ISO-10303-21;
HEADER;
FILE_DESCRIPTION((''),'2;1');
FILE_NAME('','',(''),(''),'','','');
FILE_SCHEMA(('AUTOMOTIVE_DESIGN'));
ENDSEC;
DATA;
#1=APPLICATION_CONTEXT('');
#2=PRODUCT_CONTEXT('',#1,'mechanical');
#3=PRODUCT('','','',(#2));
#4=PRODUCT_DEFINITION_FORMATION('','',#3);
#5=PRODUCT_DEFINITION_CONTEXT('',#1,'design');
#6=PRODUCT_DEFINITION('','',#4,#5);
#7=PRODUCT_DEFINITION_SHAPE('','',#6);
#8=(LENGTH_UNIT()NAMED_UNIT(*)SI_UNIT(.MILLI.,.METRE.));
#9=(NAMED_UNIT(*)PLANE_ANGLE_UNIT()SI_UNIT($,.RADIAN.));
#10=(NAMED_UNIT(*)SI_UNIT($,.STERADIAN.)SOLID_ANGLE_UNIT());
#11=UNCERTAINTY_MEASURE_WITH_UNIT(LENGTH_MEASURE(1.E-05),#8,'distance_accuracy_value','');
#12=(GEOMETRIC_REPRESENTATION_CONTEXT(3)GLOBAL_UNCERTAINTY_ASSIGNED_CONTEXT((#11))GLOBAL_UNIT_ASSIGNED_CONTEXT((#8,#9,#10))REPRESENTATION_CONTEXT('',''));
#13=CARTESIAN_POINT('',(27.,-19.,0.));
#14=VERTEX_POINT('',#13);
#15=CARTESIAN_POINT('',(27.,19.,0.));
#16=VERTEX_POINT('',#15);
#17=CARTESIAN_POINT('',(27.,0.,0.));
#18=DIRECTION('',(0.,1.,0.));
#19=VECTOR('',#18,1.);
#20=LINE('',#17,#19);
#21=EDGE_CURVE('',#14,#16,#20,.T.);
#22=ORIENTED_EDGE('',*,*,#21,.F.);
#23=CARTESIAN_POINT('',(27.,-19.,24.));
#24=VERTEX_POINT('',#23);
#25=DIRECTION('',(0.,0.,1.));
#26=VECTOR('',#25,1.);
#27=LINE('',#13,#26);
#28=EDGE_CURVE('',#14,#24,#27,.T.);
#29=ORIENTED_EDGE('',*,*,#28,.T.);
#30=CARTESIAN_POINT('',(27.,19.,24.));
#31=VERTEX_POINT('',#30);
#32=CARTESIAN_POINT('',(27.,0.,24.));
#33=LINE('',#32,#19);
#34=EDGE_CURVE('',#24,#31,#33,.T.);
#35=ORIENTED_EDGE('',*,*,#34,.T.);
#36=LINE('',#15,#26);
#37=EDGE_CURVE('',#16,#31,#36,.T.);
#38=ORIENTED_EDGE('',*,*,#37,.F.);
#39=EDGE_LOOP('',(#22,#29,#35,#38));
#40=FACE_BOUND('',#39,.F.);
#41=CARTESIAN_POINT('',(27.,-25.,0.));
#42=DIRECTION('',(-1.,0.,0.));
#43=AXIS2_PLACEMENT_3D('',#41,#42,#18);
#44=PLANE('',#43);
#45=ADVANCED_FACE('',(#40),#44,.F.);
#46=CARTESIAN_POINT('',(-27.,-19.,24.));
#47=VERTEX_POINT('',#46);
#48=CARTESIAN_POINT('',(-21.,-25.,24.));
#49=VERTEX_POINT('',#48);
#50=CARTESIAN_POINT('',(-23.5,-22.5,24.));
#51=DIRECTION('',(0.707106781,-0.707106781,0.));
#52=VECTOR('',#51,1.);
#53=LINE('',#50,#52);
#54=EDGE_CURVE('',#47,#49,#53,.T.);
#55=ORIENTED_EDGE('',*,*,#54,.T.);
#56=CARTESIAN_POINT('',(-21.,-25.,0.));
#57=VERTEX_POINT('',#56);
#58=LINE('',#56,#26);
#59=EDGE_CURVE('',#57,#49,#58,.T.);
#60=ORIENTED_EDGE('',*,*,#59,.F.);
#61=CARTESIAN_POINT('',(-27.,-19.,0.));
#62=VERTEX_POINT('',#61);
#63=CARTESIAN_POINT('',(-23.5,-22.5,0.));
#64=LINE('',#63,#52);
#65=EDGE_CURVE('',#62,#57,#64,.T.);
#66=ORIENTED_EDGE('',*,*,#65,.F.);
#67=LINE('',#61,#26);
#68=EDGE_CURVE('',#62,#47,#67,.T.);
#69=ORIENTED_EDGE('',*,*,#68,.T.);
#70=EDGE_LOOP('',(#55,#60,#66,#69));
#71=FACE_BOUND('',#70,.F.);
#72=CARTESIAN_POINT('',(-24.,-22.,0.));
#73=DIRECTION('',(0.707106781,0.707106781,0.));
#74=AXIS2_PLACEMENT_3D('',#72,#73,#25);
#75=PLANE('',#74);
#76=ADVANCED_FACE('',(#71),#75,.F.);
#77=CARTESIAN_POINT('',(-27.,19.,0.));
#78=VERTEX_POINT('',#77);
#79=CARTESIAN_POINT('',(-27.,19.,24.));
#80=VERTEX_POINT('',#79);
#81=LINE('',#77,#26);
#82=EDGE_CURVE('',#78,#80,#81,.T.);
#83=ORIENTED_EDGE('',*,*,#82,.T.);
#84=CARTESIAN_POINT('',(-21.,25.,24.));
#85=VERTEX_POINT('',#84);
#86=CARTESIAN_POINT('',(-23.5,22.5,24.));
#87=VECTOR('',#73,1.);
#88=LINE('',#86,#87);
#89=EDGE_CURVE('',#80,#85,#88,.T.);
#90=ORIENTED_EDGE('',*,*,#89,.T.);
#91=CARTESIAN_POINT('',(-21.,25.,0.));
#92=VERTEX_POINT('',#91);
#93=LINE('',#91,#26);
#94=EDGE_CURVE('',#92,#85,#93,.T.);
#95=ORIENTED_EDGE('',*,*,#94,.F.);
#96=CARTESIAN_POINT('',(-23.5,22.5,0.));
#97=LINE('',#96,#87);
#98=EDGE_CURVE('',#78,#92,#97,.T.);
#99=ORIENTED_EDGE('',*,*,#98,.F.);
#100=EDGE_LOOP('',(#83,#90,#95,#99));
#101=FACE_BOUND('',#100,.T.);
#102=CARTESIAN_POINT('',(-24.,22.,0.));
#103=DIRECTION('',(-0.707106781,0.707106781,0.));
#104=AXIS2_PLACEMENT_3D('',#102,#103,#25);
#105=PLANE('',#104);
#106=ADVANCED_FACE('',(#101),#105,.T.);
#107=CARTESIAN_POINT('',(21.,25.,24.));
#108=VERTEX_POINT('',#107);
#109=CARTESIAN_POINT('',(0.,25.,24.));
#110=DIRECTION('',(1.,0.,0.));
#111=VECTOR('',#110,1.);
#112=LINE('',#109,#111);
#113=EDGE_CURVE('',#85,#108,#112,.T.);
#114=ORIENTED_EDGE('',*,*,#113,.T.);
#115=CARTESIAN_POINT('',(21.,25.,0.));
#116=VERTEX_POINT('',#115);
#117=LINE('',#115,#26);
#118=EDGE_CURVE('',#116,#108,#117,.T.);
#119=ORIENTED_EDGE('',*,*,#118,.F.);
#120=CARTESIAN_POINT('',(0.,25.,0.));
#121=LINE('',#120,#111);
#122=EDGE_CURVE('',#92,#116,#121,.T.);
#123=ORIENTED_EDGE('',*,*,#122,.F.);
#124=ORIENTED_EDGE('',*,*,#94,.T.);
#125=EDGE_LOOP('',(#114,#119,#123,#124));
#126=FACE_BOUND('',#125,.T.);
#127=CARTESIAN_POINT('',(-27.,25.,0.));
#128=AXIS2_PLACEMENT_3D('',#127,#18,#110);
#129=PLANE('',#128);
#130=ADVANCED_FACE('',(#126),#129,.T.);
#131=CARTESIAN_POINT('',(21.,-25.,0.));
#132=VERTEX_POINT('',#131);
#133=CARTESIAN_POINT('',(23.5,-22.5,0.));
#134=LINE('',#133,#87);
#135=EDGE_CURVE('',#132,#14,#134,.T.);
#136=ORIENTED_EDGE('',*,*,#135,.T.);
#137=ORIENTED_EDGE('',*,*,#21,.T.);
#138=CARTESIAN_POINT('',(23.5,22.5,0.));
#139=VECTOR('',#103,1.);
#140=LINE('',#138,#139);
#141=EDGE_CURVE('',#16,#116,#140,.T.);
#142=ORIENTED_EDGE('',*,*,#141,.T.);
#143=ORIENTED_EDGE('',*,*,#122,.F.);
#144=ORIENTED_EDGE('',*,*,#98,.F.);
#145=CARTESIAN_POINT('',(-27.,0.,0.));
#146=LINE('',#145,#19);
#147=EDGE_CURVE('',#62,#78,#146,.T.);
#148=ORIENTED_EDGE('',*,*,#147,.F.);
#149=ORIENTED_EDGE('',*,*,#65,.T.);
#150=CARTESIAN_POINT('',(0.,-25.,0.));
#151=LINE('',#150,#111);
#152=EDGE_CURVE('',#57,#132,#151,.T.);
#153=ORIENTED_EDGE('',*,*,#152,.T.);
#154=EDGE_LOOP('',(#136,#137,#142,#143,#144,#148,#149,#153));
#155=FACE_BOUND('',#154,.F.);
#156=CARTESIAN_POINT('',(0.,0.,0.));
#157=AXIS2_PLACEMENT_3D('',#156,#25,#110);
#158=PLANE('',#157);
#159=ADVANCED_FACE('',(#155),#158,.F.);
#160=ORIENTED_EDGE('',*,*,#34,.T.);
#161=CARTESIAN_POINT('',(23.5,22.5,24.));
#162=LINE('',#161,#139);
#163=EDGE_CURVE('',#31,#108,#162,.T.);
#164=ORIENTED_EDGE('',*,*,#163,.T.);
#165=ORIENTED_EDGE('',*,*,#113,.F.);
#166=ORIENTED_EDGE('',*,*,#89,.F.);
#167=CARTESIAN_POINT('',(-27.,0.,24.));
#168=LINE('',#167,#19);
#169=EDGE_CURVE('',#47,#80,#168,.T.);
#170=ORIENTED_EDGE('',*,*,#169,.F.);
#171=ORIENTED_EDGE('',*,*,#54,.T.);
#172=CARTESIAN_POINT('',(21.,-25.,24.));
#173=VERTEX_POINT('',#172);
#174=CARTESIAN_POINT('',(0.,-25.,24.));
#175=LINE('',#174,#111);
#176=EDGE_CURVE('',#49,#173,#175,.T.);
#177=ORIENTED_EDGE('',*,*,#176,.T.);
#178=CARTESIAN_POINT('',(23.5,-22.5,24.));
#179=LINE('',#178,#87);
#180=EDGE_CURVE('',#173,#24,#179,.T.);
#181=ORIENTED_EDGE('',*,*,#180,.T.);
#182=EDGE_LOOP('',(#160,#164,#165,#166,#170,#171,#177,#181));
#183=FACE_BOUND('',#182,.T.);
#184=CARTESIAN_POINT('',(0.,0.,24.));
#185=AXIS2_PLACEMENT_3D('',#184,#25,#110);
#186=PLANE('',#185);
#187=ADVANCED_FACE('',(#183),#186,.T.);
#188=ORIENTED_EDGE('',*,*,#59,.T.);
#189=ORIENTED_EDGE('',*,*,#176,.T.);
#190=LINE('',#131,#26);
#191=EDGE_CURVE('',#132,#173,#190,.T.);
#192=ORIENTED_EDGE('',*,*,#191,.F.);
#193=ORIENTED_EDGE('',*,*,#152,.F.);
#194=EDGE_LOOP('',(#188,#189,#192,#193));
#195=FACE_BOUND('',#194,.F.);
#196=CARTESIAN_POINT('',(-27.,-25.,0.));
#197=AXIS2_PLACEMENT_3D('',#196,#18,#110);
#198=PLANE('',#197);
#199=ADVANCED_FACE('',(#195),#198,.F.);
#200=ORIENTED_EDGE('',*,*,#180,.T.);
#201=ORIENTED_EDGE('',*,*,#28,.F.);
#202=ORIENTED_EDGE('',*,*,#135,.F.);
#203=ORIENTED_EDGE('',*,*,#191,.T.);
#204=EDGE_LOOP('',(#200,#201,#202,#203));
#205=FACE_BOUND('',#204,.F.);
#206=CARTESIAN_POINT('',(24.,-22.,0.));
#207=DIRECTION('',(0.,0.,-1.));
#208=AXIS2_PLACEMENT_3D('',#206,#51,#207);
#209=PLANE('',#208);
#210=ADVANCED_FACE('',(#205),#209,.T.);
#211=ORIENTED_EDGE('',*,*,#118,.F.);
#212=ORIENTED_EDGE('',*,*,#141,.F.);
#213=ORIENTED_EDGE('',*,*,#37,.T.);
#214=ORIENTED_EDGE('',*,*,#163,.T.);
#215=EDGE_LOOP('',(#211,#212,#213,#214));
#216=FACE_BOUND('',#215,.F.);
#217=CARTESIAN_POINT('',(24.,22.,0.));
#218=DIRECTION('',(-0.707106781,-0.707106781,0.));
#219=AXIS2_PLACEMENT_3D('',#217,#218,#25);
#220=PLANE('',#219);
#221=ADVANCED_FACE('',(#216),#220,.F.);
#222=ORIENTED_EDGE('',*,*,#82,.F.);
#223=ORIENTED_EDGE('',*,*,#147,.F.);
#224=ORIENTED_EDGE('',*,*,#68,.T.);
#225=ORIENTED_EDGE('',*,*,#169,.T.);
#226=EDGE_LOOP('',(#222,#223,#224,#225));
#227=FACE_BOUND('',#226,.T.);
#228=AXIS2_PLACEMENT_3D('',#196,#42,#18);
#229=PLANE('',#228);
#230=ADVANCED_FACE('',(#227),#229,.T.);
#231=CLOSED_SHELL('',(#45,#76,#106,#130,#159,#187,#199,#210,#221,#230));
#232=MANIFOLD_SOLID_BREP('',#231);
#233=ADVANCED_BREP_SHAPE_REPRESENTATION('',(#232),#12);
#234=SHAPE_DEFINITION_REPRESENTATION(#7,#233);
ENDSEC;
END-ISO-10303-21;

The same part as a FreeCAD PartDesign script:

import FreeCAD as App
import Part
import Sketcher
Q = App.Units.Quantity


def edges_at(feature, points):
    """Names of the edges that pass closest to the given points."""
    edges = feature.Shape.Edges
    near = lambda p: min(range(len(edges)), key=lambda i: edges[i].distToShape(Part.Vertex(*p))[0])
    return sorted({f"Edge{near(p) + 1}" for p in points})

doc = App.newDocument("Part")
body = doc.addObject("PartDesign::Body", "Body")

# Sketch on XY plane
sketch1 = doc.addObject("Sketcher::SketchObject", "Sketch")
body.addObject(sketch1)
sketch1.AttachmentSupport = (doc.XY_Plane, [""])
sketch1.MapMode = "FlatFace"
sketch1.addGeometry(Part.LineSegment(App.Vector(-27, 25, 0), App.Vector(-27, -25, 0)), False)
sketch1.addGeometry(Part.LineSegment(App.Vector(-27, -25, 0), App.Vector(27, -25, 0)), False)
sketch1.addGeometry(Part.LineSegment(App.Vector(27, -25, 0), App.Vector(27, 25, 0)), False)
sketch1.addGeometry(Part.LineSegment(App.Vector(27, 25, 0), App.Vector(-27, 25, 0)), False)
sketch1.addConstraint(Sketcher.Constraint("Coincident", 0, 2, 1, 1))
sketch1.addConstraint(Sketcher.Constraint("Coincident", 1, 2, 2, 1))
sketch1.addConstraint(Sketcher.Constraint("Coincident", 2, 2, 3, 1))
sketch1.addConstraint(Sketcher.Constraint("Coincident", 3, 2, 0, 1))
sketch1.addConstraint(Sketcher.Constraint("Vertical", 0))
sketch1.addConstraint(Sketcher.Constraint("Horizontal", 1))
sketch1.addConstraint(Sketcher.Constraint("Vertical", 2))
sketch1.addConstraint(Sketcher.Constraint("Horizontal", 3))
sketch1.addConstraint(Sketcher.Constraint("Symmetric", 0, 2, 2, 2, -1, 1))
sketch1.addConstraint(Sketcher.Constraint("DistanceX", 1, 1, 1, 2, Q("54 mm")))
sketch1.addConstraint(Sketcher.Constraint("DistanceY", 0, 2, 0, 1, Q("50 mm")))
pad1 = doc.addObject("PartDesign::Pad", "Pad")
body.addObject(pad1)
pad1.Profile = sketch1
pad1.Length = 24
doc.recompute()

chamfer = doc.addObject("PartDesign::Chamfer", "Chamfer")
body.addObject(chamfer)
chamfer.Base = (pad1, edges_at(pad1, [
    (-27, 25, 12),
    (27, 25, 12),
    (27, -25, 12),
    (-27, -25, 12),
]))
chamfer.Size = 6

doc.recompute()
